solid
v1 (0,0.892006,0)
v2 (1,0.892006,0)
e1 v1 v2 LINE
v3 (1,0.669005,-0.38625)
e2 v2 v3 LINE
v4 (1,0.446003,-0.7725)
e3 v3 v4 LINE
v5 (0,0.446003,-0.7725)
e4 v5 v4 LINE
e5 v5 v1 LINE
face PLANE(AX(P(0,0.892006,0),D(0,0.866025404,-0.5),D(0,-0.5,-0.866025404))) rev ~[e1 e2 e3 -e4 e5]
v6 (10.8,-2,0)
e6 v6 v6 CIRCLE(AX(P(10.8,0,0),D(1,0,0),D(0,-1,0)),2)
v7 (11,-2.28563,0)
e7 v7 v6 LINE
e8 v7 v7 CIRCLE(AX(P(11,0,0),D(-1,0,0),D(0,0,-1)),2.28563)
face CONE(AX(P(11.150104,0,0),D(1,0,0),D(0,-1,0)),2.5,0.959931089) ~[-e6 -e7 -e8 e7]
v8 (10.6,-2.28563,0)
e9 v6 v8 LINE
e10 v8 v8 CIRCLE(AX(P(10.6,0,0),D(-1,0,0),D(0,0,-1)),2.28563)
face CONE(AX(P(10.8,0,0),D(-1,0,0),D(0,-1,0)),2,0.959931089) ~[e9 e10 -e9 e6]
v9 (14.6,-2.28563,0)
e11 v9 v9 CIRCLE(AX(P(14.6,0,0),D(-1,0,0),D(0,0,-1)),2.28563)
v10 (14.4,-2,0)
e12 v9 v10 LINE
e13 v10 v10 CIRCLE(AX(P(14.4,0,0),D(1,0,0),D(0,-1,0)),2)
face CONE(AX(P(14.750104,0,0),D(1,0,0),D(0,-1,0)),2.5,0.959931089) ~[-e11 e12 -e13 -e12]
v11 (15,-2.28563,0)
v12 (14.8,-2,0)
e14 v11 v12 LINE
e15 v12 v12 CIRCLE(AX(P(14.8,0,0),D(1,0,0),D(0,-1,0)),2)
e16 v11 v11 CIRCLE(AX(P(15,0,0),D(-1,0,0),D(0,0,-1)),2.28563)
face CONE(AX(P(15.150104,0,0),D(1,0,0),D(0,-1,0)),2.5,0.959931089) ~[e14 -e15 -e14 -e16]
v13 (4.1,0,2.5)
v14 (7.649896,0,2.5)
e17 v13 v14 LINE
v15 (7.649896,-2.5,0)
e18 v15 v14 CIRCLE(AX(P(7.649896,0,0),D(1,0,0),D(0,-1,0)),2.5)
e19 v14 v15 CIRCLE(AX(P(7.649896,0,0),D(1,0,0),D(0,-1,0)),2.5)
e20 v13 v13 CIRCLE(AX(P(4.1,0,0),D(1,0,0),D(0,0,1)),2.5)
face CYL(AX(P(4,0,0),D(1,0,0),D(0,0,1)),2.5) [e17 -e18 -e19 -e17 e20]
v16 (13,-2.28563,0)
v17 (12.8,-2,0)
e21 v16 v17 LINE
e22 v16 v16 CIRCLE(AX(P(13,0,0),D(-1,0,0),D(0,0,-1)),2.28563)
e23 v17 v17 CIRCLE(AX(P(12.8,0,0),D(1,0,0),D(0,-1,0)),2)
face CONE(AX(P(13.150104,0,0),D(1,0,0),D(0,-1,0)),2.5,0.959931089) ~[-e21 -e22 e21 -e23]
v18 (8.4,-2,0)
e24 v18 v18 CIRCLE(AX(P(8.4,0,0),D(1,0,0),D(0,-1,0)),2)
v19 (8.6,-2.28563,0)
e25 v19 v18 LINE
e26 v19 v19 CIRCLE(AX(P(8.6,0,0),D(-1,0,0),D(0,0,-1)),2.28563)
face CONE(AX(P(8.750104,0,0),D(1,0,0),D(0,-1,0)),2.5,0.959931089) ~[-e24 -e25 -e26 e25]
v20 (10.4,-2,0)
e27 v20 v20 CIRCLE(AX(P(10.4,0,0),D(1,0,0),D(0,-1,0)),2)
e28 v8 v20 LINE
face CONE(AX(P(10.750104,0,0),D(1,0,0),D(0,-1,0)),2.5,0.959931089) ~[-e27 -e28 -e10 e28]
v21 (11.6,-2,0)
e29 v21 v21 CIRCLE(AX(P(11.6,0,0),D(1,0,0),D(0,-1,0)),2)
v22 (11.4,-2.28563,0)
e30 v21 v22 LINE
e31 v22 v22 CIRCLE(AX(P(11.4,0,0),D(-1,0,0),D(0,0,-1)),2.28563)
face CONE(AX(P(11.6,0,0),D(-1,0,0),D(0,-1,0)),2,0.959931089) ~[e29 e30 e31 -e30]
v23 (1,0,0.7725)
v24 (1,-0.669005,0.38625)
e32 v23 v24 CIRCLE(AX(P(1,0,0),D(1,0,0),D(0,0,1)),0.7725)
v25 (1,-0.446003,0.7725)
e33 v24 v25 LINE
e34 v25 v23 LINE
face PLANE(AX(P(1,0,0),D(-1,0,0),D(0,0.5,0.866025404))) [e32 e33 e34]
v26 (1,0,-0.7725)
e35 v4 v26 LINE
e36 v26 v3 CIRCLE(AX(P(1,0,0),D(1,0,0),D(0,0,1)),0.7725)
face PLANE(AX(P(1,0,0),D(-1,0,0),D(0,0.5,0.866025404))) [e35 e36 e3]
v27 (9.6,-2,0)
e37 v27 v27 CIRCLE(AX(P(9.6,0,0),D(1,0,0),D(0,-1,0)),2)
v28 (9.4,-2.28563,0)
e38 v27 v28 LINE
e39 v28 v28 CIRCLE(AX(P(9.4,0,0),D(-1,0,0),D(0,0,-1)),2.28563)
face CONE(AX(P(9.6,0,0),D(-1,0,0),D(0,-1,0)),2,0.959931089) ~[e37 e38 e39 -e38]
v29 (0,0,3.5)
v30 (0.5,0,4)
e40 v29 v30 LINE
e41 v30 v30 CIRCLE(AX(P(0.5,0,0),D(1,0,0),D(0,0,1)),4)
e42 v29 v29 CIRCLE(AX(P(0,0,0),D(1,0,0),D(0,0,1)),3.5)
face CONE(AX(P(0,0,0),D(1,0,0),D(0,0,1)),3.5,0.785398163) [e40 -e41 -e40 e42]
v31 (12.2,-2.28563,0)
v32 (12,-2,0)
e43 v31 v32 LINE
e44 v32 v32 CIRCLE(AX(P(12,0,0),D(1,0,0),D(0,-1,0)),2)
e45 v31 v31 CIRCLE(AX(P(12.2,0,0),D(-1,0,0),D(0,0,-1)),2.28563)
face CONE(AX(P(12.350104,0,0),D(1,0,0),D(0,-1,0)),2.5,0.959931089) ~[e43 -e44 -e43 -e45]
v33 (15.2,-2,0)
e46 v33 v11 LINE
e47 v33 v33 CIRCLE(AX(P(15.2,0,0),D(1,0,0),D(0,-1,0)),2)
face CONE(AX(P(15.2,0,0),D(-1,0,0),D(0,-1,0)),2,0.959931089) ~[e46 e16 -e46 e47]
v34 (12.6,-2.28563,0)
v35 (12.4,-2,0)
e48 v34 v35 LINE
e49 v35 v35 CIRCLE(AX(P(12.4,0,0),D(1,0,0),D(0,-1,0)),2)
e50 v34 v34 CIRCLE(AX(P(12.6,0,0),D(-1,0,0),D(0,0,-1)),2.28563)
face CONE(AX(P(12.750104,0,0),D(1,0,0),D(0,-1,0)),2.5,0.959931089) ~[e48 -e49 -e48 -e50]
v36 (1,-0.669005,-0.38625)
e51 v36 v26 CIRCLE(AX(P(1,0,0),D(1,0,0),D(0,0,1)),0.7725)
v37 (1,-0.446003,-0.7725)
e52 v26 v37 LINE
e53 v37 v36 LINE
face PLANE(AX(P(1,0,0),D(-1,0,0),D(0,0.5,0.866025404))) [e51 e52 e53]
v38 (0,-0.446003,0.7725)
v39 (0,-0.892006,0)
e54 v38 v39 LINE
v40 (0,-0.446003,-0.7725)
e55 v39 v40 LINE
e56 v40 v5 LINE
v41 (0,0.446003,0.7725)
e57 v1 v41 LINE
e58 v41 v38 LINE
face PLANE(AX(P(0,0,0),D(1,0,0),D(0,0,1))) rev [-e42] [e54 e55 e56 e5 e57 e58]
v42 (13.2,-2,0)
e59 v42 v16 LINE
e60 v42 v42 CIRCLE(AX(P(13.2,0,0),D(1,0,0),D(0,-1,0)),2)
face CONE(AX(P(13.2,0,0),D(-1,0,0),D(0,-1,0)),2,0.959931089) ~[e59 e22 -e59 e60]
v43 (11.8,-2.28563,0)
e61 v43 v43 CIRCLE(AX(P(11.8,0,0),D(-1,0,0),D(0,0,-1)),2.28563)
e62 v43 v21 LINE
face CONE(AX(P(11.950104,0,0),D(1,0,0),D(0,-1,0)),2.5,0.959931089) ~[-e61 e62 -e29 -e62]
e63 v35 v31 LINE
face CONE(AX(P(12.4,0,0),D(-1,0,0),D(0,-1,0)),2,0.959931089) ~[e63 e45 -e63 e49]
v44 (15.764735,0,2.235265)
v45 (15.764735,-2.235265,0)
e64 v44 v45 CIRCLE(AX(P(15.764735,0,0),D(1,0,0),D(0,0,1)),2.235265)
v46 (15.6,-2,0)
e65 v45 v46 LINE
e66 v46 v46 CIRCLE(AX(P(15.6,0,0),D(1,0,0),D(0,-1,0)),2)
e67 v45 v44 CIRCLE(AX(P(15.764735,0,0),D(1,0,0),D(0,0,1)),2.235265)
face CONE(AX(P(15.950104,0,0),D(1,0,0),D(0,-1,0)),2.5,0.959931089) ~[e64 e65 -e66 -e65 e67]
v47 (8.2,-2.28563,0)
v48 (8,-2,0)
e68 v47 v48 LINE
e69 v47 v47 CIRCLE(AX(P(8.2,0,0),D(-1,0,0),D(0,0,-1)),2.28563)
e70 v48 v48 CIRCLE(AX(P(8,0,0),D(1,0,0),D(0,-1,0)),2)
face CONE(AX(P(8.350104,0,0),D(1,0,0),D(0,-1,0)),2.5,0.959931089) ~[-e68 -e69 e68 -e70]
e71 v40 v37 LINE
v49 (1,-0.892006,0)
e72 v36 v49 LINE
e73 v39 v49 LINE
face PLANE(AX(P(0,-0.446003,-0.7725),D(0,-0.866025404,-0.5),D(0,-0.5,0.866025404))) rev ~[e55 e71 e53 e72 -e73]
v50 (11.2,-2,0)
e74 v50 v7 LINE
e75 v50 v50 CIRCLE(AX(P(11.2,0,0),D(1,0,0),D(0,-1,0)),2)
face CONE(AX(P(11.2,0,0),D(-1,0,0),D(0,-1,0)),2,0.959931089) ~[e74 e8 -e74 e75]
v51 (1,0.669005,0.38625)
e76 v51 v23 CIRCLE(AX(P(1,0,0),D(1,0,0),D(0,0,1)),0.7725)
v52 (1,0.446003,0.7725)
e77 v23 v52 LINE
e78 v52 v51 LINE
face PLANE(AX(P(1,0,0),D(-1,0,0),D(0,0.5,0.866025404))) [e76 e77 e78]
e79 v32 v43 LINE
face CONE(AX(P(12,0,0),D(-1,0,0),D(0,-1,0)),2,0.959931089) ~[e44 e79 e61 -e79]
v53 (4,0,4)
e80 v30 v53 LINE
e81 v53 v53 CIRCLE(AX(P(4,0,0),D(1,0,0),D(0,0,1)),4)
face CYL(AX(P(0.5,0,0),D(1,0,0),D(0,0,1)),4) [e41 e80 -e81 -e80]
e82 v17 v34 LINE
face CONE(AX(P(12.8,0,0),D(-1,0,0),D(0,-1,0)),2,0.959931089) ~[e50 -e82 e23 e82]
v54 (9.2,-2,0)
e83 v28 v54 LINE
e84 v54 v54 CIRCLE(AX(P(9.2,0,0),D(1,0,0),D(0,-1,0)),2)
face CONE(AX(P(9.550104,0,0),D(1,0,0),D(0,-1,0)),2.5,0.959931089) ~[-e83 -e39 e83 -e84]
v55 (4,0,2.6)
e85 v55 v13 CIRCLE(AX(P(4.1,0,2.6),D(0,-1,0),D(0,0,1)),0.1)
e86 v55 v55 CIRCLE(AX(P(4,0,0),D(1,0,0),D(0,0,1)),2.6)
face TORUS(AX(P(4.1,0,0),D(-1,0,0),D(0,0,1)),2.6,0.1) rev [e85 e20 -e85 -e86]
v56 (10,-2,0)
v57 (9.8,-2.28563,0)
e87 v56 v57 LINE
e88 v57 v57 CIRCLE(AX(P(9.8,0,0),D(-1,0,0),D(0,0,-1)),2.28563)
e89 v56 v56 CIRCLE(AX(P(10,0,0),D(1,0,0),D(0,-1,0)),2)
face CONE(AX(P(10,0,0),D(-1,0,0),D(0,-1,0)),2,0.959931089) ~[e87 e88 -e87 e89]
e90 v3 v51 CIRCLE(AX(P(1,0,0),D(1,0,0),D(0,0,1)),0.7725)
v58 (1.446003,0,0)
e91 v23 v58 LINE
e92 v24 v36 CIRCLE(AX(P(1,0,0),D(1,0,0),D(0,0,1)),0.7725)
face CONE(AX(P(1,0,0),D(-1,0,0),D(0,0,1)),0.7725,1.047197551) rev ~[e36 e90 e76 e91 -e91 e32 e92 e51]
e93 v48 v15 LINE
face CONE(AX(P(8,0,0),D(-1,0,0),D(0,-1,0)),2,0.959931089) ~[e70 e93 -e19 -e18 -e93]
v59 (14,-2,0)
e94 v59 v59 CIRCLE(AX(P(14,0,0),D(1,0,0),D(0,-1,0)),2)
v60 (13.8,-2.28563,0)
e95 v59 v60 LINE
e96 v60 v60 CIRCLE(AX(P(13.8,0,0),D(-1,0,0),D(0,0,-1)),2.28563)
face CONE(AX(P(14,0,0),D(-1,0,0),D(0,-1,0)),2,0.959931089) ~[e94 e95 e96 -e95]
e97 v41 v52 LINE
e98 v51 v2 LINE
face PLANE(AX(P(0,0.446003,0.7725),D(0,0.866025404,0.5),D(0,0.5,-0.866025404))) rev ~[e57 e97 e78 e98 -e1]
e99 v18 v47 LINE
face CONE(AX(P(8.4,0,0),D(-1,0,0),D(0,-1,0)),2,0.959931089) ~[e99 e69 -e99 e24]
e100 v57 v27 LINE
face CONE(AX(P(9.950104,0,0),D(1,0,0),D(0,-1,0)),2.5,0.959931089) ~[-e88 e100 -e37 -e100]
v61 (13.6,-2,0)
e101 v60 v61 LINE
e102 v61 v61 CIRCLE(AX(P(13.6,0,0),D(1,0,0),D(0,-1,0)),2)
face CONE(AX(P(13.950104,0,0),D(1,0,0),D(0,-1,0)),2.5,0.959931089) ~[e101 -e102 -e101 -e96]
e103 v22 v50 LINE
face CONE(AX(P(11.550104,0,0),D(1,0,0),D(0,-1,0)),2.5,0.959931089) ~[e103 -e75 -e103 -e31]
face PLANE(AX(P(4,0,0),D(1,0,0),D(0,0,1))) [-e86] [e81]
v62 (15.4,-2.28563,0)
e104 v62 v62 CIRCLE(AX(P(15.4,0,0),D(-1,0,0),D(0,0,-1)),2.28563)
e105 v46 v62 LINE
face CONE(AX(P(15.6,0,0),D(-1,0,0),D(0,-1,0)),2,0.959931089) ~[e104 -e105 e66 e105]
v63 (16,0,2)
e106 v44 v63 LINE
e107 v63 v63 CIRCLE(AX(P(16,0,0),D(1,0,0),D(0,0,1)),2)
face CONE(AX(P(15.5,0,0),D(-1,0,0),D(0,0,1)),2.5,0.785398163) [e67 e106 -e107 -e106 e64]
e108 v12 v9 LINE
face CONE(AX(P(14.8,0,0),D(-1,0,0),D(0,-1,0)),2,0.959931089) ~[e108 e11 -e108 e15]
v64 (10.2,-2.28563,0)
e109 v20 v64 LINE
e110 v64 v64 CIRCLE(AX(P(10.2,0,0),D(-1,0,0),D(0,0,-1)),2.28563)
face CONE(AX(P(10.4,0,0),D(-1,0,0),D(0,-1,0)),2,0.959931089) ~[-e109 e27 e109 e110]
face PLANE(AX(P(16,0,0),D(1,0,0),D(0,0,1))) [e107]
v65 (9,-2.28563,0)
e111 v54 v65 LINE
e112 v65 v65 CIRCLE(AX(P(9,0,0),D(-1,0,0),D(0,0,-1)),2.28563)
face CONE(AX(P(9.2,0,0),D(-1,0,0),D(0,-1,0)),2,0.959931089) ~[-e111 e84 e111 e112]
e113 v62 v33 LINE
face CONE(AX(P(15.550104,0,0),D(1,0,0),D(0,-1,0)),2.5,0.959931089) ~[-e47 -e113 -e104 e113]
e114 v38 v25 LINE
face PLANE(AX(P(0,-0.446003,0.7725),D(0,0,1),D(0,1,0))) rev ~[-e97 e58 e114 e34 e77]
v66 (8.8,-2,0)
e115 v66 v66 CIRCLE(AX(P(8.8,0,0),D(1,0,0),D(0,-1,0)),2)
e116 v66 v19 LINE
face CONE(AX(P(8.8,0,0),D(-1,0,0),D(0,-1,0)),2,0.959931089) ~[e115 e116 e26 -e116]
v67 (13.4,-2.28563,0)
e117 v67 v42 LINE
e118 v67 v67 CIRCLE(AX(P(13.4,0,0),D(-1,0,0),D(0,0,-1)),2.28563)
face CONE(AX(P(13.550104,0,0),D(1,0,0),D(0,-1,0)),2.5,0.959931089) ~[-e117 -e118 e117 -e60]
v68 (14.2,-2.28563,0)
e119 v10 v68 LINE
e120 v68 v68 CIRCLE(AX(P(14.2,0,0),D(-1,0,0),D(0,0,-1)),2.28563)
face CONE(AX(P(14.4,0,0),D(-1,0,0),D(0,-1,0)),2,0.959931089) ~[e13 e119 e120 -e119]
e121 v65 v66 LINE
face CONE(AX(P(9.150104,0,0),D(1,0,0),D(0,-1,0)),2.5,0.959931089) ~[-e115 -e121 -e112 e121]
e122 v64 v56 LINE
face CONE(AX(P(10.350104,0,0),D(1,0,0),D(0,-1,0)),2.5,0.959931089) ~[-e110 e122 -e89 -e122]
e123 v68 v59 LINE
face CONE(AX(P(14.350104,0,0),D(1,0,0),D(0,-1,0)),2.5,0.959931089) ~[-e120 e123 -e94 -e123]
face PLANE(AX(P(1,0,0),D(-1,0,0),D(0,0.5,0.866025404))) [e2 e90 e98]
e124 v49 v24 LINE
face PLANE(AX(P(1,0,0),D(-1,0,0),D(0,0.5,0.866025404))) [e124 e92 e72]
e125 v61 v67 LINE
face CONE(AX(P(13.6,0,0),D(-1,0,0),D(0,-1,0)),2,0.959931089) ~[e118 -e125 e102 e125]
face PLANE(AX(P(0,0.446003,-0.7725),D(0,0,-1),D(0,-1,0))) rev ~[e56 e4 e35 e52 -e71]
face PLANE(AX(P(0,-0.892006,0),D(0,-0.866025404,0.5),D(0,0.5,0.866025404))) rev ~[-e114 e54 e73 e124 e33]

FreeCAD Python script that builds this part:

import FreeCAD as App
import Part
import Sketcher
Q = App.Units.Quantity


def edges_at(feature, points):
    """Names of the edges that pass closest to the given points."""
    edges = feature.Shape.Edges
    near = lambda p: min(range(len(edges)), key=lambda i: edges[i].distToShape(Part.Vertex(*p))[0])
    return sorted({f"Edge{near(p) + 1}" for p in points})

doc = App.newDocument("Part")
body = doc.addObject("PartDesign::Body", "Body")

# Sketch on XY plane
sketch1 = body.newObject("Sketcher::SketchObject", "Sketch")
sketch1.AttachmentSupport = (doc.getObject("XY_Plane"), [""])
sketch1.MapMode = "FlatFace"
sketch1.addGeometry([
    Part.LineSegment(App.Vector(0, 3.5, 0), App.Vector(0, 0, 0)),  # 0
    Part.LineSegment(App.Vector(0, 0, 0), App.Vector(16, 0, 0)),  # 1
    Part.LineSegment(App.Vector(16, 0, 0), App.Vector(16, 2, 0)),  # 2
    Part.LineSegment(App.Vector(16, 2, 0), App.Vector(15.5, 2.5, 0)),  # 3
    Part.LineSegment(App.Vector(15.5, 2.5, 0), App.Vector(4, 2.5, 0)),  # 4
    Part.LineSegment(App.Vector(4, 2.5, 0), App.Vector(4, 4, 0)),  # 5
    Part.LineSegment(App.Vector(4, 4, 0), App.Vector(0.5, 4, 0)),  # 6
    Part.LineSegment(App.Vector(0.5, 4, 0), App.Vector(0, 3.5, 0)),  # 7
], False)
sketch1.addConstraint([
    Sketcher.Constraint("Coincident", 0, 2, 1, 1),
    Sketcher.Constraint("Coincident", 1, 2, 2, 1),
    Sketcher.Constraint("Coincident", 2, 2, 3, 1),
    Sketcher.Constraint("Coincident", 3, 2, 4, 1),
    Sketcher.Constraint("Coincident", 4, 2, 5, 1),
    Sketcher.Constraint("Coincident", 5, 2, 6, 1),
    Sketcher.Constraint("Coincident", 6, 2, 7, 1),
    Sketcher.Constraint("Coincident", 7, 2, 0, 1),
    Sketcher.Constraint("Vertical", 0),
    Sketcher.Constraint("Horizontal", 1),
    Sketcher.Constraint("Vertical", 2),
    Sketcher.Constraint("Horizontal", 4),
    Sketcher.Constraint("Vertical", 5),
    Sketcher.Constraint("Horizontal", 6),
    Sketcher.Constraint("Coincident", 0, 2, -1, 1),
    Sketcher.Constraint("Perpendicular", 3, 7),
    Sketcher.Constraint("Equal", 6, 0),
    Sketcher.Constraint("Equal", 3, 7),
    Sketcher.Constraint("DistanceX", 1, 1, 1, 2, 16.0),
    Sketcher.Constraint("DistanceY", 2, 1, 2, 2, 2.0),
    Sketcher.Constraint("Angle", 3, Q("135 deg")),
    Sketcher.Constraint("DistanceX", 4, 2, 4, 1, 11.5),
    Sketcher.Constraint("DistanceX", 6, 2, 6, 1, 3.5),
])
revolution = body.newObject("PartDesign::Revolution", "Revolution")
revolution.Profile = sketch1
revolution.ReferenceAxis = (sketch1, ["H_Axis"])
revolution.Angle = 360
doc.recompute()

fillet = body.newObject("PartDesign::Fillet", "Fillet")
fillet.Base = (revolution, edges_at(revolution, [(4, 0, -2.5)]))
fillet.Radius = 0.1

# Sketch on XY plane
sketch2 = body.newObject("Sketcher::SketchObject", "Sketch001")
sketch2.AttachmentSupport = (doc.getObject("XY_Plane"), [""])
sketch2.MapMode = "FlatFace"
sketch2.addGeometry([
    Part.LineSegment(App.Vector(1, 0.8, 0), App.Vector(0, 0.8, 0)),
    Part.LineSegment(App.Vector(0, 0.8, 0), App.Vector(0, 0, 0)),
    Part.LineSegment(App.Vector(0, 0, 0), App.Vector(1.4, 0, 0)),
    Part.LineSegment(App.Vector(1.4, 0, 0), App.Vector(1, 0.8, 0)),
], False)
sketch2.addConstraint([
    Sketcher.Constraint("Coincident", 0, 2, 1, 1),
    Sketcher.Constraint("Coincident", 1, 2, 2, 1),
    Sketcher.Constraint("Coincident", 2, 2, 3, 1),
    Sketcher.Constraint("Coincident", 3, 2, 0, 1),
    Sketcher.Constraint("Horizontal", 0),
    Sketcher.Constraint("Vertical", 1),
    Sketcher.Constraint("Horizontal", 2),
    Sketcher.Constraint("Coincident", 1, 2, -1, 1),
    Sketcher.Constraint("DistanceX", 0, 2, 0, 1, 1.0),
    Sketcher.Constraint("Angle", 3, Q("120 deg")),
    Sketcher.Constraint("DistanceY", 1, 2, 1, 1, 0.7725),
])
groove = body.newObject("PartDesign::Groove", "Groove")
groove.Profile = sketch2
groove.ReferenceAxis = (sketch2, ["H_Axis"])
groove.Angle = 360

# Sketch on YZ plane
sketch3 = body.newObject("Sketcher::SketchObject", "Sketch002")
sketch3.AttachmentSupport = (doc.getObject("YZ_Plane"), [""])
sketch3.MapMode = "FlatFace"
sketch3.addGeometry([
    Part.LineSegment(App.Vector(0.9, 0, 0), App.Vector(0.4, -0.8, 0)),  # 0
    Part.LineSegment(App.Vector(0.4, -0.8, 0), App.Vector(-0.4, -0.8, 0)),  # 1
    Part.LineSegment(App.Vector(-0.4, -0.8, 0), App.Vector(-0.9, 0, 0)),  # 2
    Part.LineSegment(App.Vector(-0.9, 0, 0), App.Vector(-0.4, 0.8, 0)),  # 3
    Part.LineSegment(App.Vector(-0.4, 0.8, 0), App.Vector(0.4, 0.8, 0)),  # 4
    Part.LineSegment(App.Vector(0.4, 0.8, 0), App.Vector(0.9, 0, 0)),  # 5
], False)
sketch3.addConstraint([
    Sketcher.Constraint("Coincident", 0, 2, 1, 1),
    Sketcher.Constraint("Coincident", 1, 2, 2, 1),
    Sketcher.Constraint("Coincident", 2, 2, 3, 1),
    Sketcher.Constraint("Coincident", 3, 2, 4, 1),
    Sketcher.Constraint("Coincident", 4, 2, 5, 1),
    Sketcher.Constraint("Coincident", 5, 2, 0, 1),
    Sketcher.Constraint("Horizontal", 1),
    Sketcher.Constraint("Horizontal", 4),
    Sketcher.Constraint("Symmetric", 0, 2, 3, 2, -1, 1),
    Sketcher.Constraint("Symmetric", 2, 2, 5, 2, -1, 1),
    Sketcher.Constraint("PointOnObject", 2, 2, -1),
    Sketcher.Constraint("Parallel", 2, 5),
    Sketcher.Constraint("Vertical", 1, 2, 3, 2),
    Sketcher.Constraint("Angle", 0, Q("-120 deg")),
    Sketcher.Constraint("DistanceY", 1, 2, 3, 2, 1.545),
    Sketcher.Constraint("DistanceX", 1, 2, 1, 1, 0.892006),
])
pocket1 = body.newObject("PartDesign::Pocket", "Pocket")
pocket1.Profile = sketch3
pocket1.Length = 1
pocket1.Reversed = True

# Sketch on XY plane
sketch4 = body.newObject("Sketcher::SketchObject", "Sketch003")
sketch4.AttachmentSupport = (doc.getObject("XY_Plane"), [""])
sketch4.MapMode = "FlatFace"
sketch4.addGeometry([
    Part.LineSegment(App.Vector(8, -2, 0), App.Vector(7.6, -2.5, 0)),  # 0
    Part.LineSegment(App.Vector(7.6, -2.5, 0), App.Vector(7.6, -3.1, 0)),  # 1
    Part.LineSegment(App.Vector(7.6, -3.1, 0), App.Vector(8.4, -3.1, 0)),  # 2
    Part.LineSegment(App.Vector(8.4, -3.1, 0), App.Vector(8.4, -2.5, 0)),  # 3
    Part.LineSegment(App.Vector(8.4, -2.5, 0), App.Vector(8, -2, 0)),  # 4
], False)
sketch4.addConstraint([
    Sketcher.Constraint("Coincident", 0, 2, 1, 1),
    Sketcher.Constraint("Coincident", 1, 2, 2, 1),
    Sketcher.Constraint("Coincident", 2, 2, 3, 1),
    Sketcher.Constraint("Coincident", 3, 2, 4, 1),
    Sketcher.Constraint("Coincident", 4, 2, 0, 1),
    Sketcher.Constraint("Vertical", 1),
    Sketcher.Constraint("Horizontal", 2),
    Sketcher.Constraint("Vertical", 3),
    Sketcher.Constraint("Horizontal", 0, 2, 3, 2),
    Sketcher.Constraint("Equal", 0, 4),
    Sketcher.Constraint("Angle", 0, Q("-125 deg")),
    Sketcher.Constraint("DistanceX", -1, 1, 4, 2, 8.0),
    Sketcher.Constraint("DistanceY", 4, 2, -1, 1, 2.0),
    Sketcher.Constraint("DistanceY", 0, 2, -1, 1, 2.5),
    Sketcher.Constraint("DistanceY", 1, 2, 1, 1, 0.625),
])
groove2 = body.newObject("PartDesign::Groove", "Groove001")
groove2.Profile = sketch4
groove2.ReferenceAxis = (sketch4, ["H_Axis"])
groove2.Angle = 360
doc.recompute()

linearpattern = body.newObject("PartDesign::LinearPattern", "LinearPattern")
linearpattern.Originals = [groove2]
linearpattern.Direction = (doc.getObject("X_Axis"), [""])
linearpattern.Mode = "offset"
linearpattern.Offset = 0.4
linearpattern.Occurrences = 20
body.Tip = linearpattern

doc.recompute()
